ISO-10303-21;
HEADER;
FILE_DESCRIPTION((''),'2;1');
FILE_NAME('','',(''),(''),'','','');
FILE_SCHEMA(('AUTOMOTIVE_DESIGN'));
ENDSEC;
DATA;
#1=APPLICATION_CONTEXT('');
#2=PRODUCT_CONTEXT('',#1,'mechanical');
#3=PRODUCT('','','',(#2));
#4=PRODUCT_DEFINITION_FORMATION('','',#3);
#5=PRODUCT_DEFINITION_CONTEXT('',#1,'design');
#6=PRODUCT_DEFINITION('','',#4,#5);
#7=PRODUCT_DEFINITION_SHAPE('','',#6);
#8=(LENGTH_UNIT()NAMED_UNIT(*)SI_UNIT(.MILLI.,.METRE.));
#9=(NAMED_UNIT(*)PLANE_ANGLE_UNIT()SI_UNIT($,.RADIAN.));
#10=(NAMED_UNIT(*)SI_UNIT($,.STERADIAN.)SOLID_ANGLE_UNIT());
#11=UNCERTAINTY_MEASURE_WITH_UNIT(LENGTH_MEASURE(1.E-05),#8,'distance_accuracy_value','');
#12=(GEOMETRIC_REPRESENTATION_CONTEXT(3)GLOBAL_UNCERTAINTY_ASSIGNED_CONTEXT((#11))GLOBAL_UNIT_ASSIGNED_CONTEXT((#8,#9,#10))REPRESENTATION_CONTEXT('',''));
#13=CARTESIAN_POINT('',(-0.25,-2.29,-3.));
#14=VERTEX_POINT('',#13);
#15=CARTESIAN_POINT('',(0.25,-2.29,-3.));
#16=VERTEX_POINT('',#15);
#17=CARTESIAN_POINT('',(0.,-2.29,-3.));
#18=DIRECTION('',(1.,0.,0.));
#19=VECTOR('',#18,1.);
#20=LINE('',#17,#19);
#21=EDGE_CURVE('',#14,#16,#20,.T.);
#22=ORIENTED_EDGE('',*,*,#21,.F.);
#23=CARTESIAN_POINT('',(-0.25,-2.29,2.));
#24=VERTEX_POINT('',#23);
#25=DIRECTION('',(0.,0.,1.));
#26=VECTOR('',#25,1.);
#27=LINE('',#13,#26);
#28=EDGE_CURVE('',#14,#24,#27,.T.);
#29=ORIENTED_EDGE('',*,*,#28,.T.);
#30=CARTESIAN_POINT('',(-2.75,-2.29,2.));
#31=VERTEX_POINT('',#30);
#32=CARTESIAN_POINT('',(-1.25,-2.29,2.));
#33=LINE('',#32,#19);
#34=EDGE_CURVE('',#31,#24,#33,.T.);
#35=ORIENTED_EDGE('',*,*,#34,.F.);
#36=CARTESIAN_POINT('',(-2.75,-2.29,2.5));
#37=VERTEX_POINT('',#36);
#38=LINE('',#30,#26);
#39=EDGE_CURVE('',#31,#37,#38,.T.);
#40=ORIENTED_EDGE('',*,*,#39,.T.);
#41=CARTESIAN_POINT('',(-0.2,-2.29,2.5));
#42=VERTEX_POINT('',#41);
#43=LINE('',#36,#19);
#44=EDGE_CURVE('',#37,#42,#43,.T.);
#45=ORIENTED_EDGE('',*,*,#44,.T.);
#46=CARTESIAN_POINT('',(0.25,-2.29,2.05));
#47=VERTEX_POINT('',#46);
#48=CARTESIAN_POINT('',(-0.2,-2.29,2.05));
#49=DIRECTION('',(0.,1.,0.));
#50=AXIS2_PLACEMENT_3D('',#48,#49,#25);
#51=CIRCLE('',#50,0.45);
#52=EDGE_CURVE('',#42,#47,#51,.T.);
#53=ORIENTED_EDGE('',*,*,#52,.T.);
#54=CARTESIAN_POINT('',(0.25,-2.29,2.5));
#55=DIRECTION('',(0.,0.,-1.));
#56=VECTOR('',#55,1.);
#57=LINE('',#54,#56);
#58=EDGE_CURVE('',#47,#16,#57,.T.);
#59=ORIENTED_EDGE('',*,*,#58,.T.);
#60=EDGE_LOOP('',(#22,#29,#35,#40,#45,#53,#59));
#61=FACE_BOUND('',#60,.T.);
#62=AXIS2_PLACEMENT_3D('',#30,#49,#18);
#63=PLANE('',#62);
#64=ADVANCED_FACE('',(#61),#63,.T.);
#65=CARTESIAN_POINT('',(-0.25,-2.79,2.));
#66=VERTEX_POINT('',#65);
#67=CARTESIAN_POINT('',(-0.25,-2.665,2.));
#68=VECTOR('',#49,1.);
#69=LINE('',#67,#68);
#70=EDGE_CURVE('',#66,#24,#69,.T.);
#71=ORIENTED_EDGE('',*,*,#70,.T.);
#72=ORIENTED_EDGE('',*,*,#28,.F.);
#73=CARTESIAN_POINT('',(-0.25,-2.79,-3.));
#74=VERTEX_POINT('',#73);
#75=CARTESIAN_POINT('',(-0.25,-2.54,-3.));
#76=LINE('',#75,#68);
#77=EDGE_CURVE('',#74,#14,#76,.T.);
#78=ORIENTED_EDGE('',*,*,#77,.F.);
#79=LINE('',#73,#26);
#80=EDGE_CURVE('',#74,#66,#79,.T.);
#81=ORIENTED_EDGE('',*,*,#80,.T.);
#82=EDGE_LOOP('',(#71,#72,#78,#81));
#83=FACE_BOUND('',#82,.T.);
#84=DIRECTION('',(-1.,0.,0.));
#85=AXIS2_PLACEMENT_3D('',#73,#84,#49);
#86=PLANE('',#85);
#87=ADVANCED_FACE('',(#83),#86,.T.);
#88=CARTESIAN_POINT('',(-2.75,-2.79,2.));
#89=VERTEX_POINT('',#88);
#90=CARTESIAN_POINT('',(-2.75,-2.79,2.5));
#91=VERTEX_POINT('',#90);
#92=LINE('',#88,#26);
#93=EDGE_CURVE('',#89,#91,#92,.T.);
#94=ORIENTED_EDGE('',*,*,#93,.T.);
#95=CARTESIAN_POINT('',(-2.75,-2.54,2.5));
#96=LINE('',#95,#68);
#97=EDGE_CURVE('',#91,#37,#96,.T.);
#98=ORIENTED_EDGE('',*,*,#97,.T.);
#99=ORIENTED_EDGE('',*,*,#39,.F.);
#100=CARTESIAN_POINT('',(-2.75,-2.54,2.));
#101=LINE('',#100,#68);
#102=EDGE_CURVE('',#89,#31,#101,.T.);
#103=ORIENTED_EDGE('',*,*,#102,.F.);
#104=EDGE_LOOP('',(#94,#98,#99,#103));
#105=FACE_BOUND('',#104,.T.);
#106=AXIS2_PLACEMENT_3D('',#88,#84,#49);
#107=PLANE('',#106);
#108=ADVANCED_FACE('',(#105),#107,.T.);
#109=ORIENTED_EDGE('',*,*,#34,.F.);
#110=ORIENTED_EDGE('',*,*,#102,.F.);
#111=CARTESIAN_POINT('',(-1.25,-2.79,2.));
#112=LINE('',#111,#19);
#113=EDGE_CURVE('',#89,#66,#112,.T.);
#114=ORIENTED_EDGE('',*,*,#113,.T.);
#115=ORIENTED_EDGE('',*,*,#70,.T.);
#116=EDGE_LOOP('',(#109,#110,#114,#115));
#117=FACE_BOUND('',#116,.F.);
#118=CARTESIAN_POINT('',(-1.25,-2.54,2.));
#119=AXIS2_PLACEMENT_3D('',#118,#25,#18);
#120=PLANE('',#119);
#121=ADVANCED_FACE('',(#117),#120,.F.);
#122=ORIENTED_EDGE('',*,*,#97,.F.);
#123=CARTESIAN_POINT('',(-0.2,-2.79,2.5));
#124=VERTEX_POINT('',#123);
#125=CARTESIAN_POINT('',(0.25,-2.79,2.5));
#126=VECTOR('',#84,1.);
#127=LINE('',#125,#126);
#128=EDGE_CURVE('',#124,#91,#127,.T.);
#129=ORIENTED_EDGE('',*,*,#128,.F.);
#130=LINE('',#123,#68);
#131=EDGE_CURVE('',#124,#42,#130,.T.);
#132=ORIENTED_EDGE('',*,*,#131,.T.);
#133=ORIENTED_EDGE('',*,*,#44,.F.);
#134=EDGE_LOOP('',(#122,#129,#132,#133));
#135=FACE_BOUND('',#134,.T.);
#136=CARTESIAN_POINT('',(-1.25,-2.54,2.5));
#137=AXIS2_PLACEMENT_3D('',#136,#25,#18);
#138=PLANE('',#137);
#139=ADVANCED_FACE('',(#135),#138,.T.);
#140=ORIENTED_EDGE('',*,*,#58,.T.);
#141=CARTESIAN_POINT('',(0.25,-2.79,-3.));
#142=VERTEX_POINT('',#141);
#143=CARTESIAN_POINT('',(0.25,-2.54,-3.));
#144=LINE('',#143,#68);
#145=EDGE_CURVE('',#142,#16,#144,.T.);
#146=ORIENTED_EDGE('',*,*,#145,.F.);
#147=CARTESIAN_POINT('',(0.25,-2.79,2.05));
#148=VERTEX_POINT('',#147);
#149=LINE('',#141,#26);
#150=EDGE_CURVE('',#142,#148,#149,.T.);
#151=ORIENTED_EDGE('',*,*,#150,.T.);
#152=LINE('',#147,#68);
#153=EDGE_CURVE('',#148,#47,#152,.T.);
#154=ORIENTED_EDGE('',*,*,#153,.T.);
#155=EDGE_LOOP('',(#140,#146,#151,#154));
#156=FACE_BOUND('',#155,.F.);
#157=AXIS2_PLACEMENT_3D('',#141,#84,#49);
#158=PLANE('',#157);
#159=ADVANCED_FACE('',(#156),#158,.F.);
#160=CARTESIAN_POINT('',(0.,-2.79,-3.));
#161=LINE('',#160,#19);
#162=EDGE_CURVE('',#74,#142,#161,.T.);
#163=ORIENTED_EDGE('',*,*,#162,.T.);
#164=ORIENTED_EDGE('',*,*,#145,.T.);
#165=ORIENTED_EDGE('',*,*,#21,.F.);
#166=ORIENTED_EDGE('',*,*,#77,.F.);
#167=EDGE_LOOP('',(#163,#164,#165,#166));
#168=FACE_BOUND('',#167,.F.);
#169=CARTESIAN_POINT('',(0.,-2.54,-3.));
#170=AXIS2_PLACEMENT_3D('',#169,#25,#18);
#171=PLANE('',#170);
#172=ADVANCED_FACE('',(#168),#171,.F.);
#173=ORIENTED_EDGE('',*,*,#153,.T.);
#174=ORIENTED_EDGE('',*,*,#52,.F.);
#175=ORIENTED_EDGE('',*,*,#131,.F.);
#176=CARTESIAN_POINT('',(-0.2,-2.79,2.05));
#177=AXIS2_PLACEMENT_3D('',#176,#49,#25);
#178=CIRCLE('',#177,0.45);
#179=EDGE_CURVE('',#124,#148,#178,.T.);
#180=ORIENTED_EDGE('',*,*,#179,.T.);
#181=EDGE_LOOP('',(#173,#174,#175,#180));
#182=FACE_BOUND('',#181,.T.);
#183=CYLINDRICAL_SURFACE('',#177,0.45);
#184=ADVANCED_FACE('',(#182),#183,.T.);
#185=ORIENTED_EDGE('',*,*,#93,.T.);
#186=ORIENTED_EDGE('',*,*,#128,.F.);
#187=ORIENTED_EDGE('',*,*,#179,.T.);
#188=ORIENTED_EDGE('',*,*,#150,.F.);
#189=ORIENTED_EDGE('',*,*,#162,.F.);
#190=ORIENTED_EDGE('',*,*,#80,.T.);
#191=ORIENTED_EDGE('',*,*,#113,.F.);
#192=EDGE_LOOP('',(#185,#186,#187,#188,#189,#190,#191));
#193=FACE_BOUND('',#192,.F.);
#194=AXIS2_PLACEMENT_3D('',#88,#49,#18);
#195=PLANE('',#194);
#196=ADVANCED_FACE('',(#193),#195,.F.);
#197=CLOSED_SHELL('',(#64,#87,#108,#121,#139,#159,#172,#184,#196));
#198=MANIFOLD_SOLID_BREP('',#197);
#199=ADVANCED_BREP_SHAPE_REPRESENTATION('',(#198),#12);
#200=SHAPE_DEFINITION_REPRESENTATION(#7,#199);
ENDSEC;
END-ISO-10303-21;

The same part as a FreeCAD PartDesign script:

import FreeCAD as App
import Part
import Sketcher
from FreeCAD import Vector


def edges_at(feature, points):
    """Names of the edges that pass closest to the given points."""
    edges = feature.Shape.Edges
    near = lambda p: min(range(len(edges)), key=lambda i: edges[i].distToShape(Part.Vertex(*p))[0])
    return sorted({f"Edge{near(p) + 1}" for p in points})

doc = App.newDocument("Part")
body = doc.addObject("PartDesign::Body", "Body")

sketch1 = doc.addObject("Sketcher::SketchObject", "Sketch")
body.addObject(sketch1)
sketch1.AttachmentSupport = (doc.XY_Plane, [""])
sketch1.MapMode = "FlatFace"
sketch1.AttachmentOffset = App.Placement(Vector(0, 0, 2), App.Rotation())
sketch1.addGeometry([
    Part.LineSegment(Vector(-2.8, -2.3, 0), Vector(-2.8, -2.8, 0)),
    Part.LineSegment(Vector(-2.8, -2.8, 0), Vector(0.2, -2.8, 0)),
    Part.LineSegment(Vector(0.2, -2.8, 0), Vector(0.2, -2.3, 0)),
    Part.LineSegment(Vector(0.2, -2.3, 0), Vector(-2.8, -2.3, 0)),
], False)
sketch1.addConstraint([
    Sketcher.Constraint("Coincident", 0, 2, 1, 1),
    Sketcher.Constraint("Coincident", 1, 2, 2, 1),
    Sketcher.Constraint("Coincident", 2, 2, 3, 1),
    Sketcher.Constraint("Coincident", 3, 2, 0, 1),
    Sketcher.Constraint("Vertical", 0),
    Sketcher.Constraint("Horizontal", 1),
    Sketcher.Constraint("Vertical", 2),
    Sketcher.Constraint("Horizontal", 3),
    Sketcher.Constraint("DistanceX", 1, 1, 1, 2, 3.0),
    Sketcher.Constraint("DistanceY", 0, 2, 0, 1, 0.5),
    Sketcher.Constraint("DistanceX", 0, 2, -1, 1, 2.75),
    Sketcher.Constraint("DistanceY", 0, 2, -1, 1, 2.79),
])
pad1 = doc.addObject("PartDesign::Pad", "Pad")
body.addObject(pad1)
pad1.Profile = sketch1
pad1.Length = 0.5
body2 = doc.addObject("PartDesign::Body", "Body001")

sketch2 = doc.addObject("Sketcher::SketchObject", "Sketch001")
body2.addObject(sketch2)
sketch2.AttachmentSupport = (doc.getObject("XY_Plane001"), [""])
sketch2.MapMode = "FlatFace"
sketch2.AttachmentOffset = App.Placement(Vector(0, 0, -3), App.Rotation())
sketch2.addGeometry([
    Part.LineSegment(Vector(-0.2, -2.3, 0), Vector(-0.2, -2.8, 0)),
    Part.LineSegment(Vector(-0.2, -2.8, 0), Vector(0.2, -2.8, 0)),
    Part.LineSegment(Vector(0.2, -2.8, 0), Vector(0.2, -2.3, 0)),
    Part.LineSegment(Vector(0.2, -2.3, 0), Vector(-0.2, -2.3, 0)),
], False)
sketch2.addConstraint([
    Sketcher.Constraint("Coincident", 0, 2, 1, 1),
    Sketcher.Constraint("Coincident", 1, 2, 2, 1),
    Sketcher.Constraint("Coincident", 2, 2, 3, 1),
    Sketcher.Constraint("Coincident", 3, 2, 0, 1),
    Sketcher.Constraint("Vertical", 0),
    Sketcher.Constraint("Horizontal", 1),
    Sketcher.Constraint("Vertical", 2),
    Sketcher.Constraint("Horizontal", 3),
    Sketcher.Constraint("Equal", 3, 0),
    Sketcher.Constraint("DistanceX", 1, 1, 1, 2, 0.5),
    Sketcher.Constraint("DistanceX", 0, 2, -1, 1, 0.25),
    Sketcher.Constraint("DistanceY", 0, 2, -1, 1, 2.79),
])
pad2 = doc.addObject("PartDesign::Pad", "Pad001")
body2.addObject(pad2)
pad2.Profile = sketch2
pad2.Length = 5.5
doc.recompute()

boolean = doc.addObject("PartDesign::Boolean", "Boolean")
body2.addObject(boolean)
boolean.Type = "Fuse"
boolean.addObjects([body])
doc.recompute()

fillet = doc.addObject("PartDesign::Fillet", "Fillet")
body2.addObject(fillet)
fillet.Base = (boolean, edges_at(boolean, [(0.25, -2.54, 2.5)]))
fillet.Radius = 0.45

doc.recompute()
